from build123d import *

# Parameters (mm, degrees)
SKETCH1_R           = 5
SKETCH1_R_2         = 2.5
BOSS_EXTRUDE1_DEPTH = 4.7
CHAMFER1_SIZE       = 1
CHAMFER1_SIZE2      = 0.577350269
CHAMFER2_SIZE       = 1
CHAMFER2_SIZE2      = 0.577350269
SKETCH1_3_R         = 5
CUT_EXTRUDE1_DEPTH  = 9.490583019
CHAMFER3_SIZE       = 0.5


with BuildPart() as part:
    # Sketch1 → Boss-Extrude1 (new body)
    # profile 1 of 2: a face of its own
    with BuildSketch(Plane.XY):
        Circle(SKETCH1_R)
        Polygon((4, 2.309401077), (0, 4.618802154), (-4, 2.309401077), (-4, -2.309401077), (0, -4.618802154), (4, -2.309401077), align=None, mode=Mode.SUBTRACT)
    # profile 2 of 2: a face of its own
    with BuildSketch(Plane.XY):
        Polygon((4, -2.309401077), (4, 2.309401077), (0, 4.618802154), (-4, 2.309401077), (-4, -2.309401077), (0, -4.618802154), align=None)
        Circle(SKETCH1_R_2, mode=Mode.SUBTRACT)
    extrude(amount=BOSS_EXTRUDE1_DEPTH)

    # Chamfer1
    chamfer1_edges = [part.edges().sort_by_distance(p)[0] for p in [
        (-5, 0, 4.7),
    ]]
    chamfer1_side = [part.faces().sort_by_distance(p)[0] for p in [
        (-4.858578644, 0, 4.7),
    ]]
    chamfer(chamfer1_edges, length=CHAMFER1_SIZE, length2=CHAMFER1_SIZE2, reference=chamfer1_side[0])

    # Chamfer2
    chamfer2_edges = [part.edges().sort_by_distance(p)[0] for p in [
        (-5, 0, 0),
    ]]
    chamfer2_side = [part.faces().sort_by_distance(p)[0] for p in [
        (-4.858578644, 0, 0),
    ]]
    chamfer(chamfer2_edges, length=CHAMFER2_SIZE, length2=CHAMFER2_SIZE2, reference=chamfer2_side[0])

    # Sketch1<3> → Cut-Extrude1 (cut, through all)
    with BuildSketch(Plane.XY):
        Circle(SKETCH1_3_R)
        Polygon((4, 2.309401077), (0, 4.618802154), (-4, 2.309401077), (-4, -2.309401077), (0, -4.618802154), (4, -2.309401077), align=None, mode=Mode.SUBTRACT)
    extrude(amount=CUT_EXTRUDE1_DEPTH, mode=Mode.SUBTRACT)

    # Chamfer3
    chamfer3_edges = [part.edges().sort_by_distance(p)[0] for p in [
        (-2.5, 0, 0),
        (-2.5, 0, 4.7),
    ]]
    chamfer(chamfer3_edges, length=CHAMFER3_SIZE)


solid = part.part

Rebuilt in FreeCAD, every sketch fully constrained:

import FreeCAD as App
import Part
import Sketcher

V = App.Vector
Q = App.Units.Quantity


def edges_at(feature, points):
    """Names of the edges that pass closest to the given points."""
    edges = feature.Shape.Edges
    near = lambda p: min(range(len(edges)), key=lambda i: edges[i].distToShape(Part.Vertex(*p))[0])
    return sorted({f"Edge{near(p) + 1}" for p in points})

doc = App.newDocument("Part")
body = doc.addObject("PartDesign::Body", "Body")

# Sketch on XY plane
sketch1 = body.newObject("Sketcher::SketchObject", "Sketch")
sketch1.AttachmentSupport = (doc.getObject("XY_Plane"), [""])
sketch1.MapMode = "FlatFace"
sketch1.addGeometry([
    Part.Circle(V(0, 0, 0), V(0, 0, 1), 5),
    Part.Circle(V(0, 0, 0), V(0, 0, 1), 2.5),
], False)
sketch1.addConstraint([
    Sketcher.Constraint("Coincident", 0, 3, -1, 1),
    Sketcher.Constraint("Coincident", 1, 3, -1, 1),
    Sketcher.Constraint("Diameter", 0, 10.0),
    Sketcher.Constraint("Diameter", 1, 5.0),
])
pad1 = body.newObject("PartDesign::Pad", "Pad")
pad1.Profile = sketch1
pad1.Length = 4.7
doc.recompute()

chamfer = body.newObject("PartDesign::Chamfer", "Chamfer")
chamfer.Base = (pad1, edges_at(pad1, [(-5, 0, 4.7)]))
chamfer.ChamferType = "Two distances"
chamfer.Size = 1
chamfer.Size2 = 0.57735
chamfer.FlipDirection = True
doc.recompute()

chamfer2 = body.newObject("PartDesign::Chamfer", "Chamfer001")
chamfer2.Base = (chamfer, edges_at(chamfer, [(-5, 0, 0)]))
chamfer2.ChamferType = "Two distances"
chamfer2.Size = 1
chamfer2.Size2 = 0.57735
chamfer2.FlipDirection = True

# Sketch on XY plane
sketch2 = body.newObject("Sketcher::SketchObject", "Sketch001")
sketch2.AttachmentSupport = (doc.getObject("XY_Plane"), [""])
sketch2.MapMode = "FlatFace"
sketch2.addGeometry([
    Part.Circle(V(0, 0, 0), V(0, 0, 1), 5),  # 0
    Part.LineSegment(V(0, 4.6, 0), V(4, 2.3, 0)),  # 1
    Part.LineSegment(V(4, 2.3, 0), V(4, -2.3, 0)),  # 2
    Part.LineSegment(V(4, -2.3, 0), V(0, -4.6, 0)),  # 3
    Part.LineSegment(V(0, -4.6, 0), V(-4, -2.3, 0)),  # 4
    Part.LineSegment(V(-4, -2.3, 0), V(-4, 2.3, 0)),  # 5
    Part.LineSegment(V(-4, 2.3, 0), V(0, 4.6, 0)),  # 6
], False)
sketch2.addConstraint([
    Sketcher.Constraint("Coincident", 1, 2, 2, 1),
    Sketcher.Constraint("Coincident", 2, 2, 3, 1),
    Sketcher.Constraint("Coincident", 3, 2, 4, 1),
    Sketcher.Constraint("Coincident", 4, 2, 5, 1),
    Sketcher.Constraint("Coincident", 5, 2, 6, 1),
    Sketcher.Constraint("Coincident", 6, 2, 1, 1),
    Sketcher.Constraint("Vertical", 2),
    Sketcher.Constraint("Vertical", 5),
    Sketcher.Constraint("Coincident", 0, 3, -1, 1),
    Sketcher.Constraint("Symmetric", 1, 2, 4, 2, -1, 1),
    Sketcher.Constraint("Symmetric", 3, 2, 6, 2, -1, 1),
    Sketcher.Constraint("PointOnObject", 3, 2, -2),
    Sketcher.Constraint("Parallel", 3, 6),
    Sketcher.Constraint("Horizontal", 2, 2, 4, 2),
    Sketcher.Constraint("Diameter", 0, 10.0),
    Sketcher.Constraint("Angle", 1, Q("-30 deg")),
    Sketcher.Constraint("DistanceX", -1, 1, 1, 2, 4.0),
    Sketcher.Constraint("DistanceY", -1, 1, 1, 2, 2.309401),
])
pocket1 = body.newObject("PartDesign::Pocket", "Pocket")
pocket1.Profile = sketch2
pocket1.Type = "ThroughAll"
pocket1.Reversed = True
doc.recompute()

chamfer3 = body.newObject("PartDesign::Chamfer", "Chamfer002")
chamfer3.Base = (pocket1, edges_at(pocket1, [(-2.5, 0, 0), (-2.5, 0, 4.7)]))
chamfer3.Size = 0.5

doc.recompute()
